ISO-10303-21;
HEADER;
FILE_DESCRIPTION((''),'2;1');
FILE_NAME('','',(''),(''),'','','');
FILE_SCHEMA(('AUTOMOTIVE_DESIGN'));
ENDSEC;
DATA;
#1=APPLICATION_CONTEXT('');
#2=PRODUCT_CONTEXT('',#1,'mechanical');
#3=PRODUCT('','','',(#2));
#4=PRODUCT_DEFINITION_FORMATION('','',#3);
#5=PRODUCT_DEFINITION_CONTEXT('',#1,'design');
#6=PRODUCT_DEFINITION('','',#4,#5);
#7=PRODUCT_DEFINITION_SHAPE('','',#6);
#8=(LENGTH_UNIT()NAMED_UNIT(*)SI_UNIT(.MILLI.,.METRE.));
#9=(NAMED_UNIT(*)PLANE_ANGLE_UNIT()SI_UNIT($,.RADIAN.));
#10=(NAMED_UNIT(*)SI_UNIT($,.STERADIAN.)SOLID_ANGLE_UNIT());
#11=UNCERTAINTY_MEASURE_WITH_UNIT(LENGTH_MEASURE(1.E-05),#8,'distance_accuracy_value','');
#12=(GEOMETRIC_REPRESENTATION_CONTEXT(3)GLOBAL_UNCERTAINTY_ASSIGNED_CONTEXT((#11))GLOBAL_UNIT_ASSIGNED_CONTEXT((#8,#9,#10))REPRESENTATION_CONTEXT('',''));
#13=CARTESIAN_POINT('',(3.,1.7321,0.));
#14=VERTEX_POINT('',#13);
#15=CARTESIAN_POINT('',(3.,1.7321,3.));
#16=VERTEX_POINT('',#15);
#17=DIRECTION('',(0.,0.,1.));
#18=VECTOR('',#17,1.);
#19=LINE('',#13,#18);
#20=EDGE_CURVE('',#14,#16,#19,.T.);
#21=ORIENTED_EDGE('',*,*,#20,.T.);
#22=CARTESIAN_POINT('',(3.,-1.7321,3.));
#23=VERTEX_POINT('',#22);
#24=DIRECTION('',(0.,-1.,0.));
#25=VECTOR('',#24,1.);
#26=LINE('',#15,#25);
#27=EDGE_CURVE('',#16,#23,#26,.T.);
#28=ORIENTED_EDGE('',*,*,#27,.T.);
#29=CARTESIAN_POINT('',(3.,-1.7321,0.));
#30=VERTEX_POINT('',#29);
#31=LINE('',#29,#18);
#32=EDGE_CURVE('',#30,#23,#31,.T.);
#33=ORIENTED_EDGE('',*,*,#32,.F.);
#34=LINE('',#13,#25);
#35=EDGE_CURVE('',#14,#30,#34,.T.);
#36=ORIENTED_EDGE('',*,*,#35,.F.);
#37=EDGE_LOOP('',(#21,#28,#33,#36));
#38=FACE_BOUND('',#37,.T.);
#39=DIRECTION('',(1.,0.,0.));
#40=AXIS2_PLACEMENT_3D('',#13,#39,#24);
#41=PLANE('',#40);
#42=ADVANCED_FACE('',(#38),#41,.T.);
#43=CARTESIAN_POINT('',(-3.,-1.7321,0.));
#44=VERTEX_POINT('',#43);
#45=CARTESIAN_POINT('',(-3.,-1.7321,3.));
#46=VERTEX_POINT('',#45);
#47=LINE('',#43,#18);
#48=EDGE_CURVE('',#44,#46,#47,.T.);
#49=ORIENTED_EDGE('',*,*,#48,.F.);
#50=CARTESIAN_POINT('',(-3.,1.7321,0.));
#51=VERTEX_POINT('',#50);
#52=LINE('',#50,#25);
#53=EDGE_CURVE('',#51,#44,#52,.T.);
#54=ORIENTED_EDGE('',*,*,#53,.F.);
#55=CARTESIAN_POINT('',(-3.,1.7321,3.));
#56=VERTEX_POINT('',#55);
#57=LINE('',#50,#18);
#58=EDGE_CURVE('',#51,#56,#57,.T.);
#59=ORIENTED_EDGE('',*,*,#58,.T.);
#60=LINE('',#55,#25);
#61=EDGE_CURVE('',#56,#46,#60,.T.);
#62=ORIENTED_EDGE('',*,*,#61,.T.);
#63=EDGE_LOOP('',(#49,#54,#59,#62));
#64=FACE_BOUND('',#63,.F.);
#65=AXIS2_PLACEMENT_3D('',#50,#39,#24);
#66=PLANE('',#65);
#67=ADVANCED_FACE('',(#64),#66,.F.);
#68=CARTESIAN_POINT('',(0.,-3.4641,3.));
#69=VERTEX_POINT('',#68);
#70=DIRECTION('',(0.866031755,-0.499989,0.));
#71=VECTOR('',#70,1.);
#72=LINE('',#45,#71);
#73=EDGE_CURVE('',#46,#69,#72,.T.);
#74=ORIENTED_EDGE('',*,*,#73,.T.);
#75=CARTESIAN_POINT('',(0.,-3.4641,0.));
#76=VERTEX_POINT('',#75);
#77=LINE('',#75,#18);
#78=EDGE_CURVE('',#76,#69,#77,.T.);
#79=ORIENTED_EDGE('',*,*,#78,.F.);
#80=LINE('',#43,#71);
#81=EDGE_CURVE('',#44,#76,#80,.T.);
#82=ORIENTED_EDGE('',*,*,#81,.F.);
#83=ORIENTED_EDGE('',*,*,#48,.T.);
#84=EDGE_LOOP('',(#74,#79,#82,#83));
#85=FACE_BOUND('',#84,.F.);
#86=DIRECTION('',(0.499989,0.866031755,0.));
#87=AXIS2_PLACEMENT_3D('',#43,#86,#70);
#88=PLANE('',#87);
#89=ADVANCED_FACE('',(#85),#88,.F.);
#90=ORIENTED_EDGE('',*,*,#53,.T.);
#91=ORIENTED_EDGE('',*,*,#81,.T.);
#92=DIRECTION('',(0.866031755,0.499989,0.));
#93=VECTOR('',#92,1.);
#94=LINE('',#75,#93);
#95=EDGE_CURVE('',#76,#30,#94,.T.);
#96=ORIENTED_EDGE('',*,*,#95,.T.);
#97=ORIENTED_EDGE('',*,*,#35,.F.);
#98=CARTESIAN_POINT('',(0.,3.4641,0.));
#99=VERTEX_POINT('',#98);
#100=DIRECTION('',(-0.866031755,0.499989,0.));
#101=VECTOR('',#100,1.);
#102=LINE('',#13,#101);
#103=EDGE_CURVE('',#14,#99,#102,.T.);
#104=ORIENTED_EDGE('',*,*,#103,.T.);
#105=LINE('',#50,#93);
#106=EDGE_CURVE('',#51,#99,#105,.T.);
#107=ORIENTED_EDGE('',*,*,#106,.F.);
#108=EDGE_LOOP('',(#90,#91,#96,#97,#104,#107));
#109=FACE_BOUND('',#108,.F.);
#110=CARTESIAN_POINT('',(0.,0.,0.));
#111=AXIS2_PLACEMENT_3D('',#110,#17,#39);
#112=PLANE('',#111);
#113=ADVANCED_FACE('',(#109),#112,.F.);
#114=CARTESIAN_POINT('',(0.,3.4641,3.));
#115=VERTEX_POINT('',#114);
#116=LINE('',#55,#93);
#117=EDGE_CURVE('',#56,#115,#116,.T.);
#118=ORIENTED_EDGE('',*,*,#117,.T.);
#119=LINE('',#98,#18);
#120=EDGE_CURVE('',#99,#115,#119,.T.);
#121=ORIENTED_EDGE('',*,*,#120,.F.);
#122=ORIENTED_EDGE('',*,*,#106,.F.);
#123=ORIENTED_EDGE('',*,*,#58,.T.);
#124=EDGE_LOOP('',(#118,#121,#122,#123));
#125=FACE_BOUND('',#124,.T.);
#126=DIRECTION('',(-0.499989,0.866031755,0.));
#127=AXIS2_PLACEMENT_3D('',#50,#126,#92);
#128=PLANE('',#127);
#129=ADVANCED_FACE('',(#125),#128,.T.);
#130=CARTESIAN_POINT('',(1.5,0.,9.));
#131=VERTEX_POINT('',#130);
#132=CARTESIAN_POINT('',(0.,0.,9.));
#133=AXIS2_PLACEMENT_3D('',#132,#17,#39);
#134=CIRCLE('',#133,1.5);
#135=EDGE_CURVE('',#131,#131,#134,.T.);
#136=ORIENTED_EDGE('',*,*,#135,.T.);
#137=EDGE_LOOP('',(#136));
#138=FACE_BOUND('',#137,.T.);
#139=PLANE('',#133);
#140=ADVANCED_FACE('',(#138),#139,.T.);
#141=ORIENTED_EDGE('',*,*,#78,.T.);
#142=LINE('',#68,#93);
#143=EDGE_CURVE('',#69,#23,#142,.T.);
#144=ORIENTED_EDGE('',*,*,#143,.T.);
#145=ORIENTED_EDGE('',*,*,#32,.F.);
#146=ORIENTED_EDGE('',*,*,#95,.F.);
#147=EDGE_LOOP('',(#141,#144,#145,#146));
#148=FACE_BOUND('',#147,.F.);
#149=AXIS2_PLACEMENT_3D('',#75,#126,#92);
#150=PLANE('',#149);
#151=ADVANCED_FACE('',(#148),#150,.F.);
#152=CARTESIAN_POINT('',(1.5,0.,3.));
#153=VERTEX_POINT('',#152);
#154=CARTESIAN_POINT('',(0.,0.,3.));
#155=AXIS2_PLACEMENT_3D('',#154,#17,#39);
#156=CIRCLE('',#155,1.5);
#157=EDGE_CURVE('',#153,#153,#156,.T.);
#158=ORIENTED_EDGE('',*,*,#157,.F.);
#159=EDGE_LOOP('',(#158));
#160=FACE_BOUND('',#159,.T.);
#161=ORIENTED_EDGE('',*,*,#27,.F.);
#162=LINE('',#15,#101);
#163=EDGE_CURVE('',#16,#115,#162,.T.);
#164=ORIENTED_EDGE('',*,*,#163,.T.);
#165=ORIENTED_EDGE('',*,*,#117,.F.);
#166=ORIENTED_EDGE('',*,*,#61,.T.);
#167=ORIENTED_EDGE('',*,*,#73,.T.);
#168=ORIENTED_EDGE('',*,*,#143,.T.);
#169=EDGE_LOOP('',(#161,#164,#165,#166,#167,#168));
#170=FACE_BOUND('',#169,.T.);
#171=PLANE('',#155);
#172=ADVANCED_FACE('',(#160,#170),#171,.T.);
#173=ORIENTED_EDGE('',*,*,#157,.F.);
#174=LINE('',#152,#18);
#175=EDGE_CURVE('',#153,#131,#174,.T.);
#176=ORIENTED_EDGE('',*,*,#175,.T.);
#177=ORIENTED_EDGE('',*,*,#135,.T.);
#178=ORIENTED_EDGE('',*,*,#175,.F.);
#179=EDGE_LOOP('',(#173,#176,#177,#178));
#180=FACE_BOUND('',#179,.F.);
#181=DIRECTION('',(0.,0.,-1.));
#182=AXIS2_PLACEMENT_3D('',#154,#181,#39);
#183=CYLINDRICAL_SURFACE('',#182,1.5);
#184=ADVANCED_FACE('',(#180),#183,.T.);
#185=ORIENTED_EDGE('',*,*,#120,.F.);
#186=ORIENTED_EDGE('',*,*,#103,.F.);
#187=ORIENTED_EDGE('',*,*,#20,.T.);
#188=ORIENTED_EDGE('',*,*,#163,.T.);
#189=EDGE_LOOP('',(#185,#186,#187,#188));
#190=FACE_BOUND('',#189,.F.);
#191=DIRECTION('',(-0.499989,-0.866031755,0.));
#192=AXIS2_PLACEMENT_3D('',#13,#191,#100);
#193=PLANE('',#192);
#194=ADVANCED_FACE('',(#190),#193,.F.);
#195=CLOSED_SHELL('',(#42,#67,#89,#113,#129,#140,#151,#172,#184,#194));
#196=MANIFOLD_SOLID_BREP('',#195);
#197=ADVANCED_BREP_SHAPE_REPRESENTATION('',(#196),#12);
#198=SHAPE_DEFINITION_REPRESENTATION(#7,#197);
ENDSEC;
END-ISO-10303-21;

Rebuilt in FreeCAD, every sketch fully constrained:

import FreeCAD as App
import Part
import Sketcher

V = App.Vector
Q = App.Units.Quantity


def add_polygon(sketch, points):
    """Adds a closed chain of lines whose ends are joined by coincident constraints."""
    first, n = sketch.GeometryCount, len(points)
    for a, b in zip(points, points[1:] + points[:1]):
        sketch.addGeometry(Part.LineSegment(App.Vector(*a, 0), App.Vector(*b, 0)), False)
    for i in range(n):
        sketch.addConstraint(Sketcher.Constraint("Coincident", first + i, 2, first + (i + 1) % n, 1))

doc = App.newDocument("Part")
body = doc.addObject("PartDesign::Body", "Body")

# Sketch on XY plane
sketch1 = body.newObject("Sketcher::SketchObject", "Sketch")
sketch1.AttachmentSupport = (doc.getObject("XY_Plane"), [""])
sketch1.MapMode = "FlatFace"
add_polygon(sketch1, [(3, -1.7), (3, 1.7), (0, 3.5), (-3, 1.7), (-3, -1.7), (0, -3.5)])  # lines 0-5
sketch1.addConstraint(Sketcher.Constraint("Vertical", 0))
sketch1.addConstraint(Sketcher.Constraint("Vertical", 3))
sketch1.addConstraint(Sketcher.Constraint("Symmetric", 0, 2, 3, 2, -1, 1))
sketch1.addConstraint(Sketcher.Constraint("Symmetric", 1, 2, 4, 2, -1, 1))
sketch1.addConstraint(Sketcher.Constraint("PointOnObject", 1, 2, -2))
sketch1.addConstraint(Sketcher.Constraint("Parallel", 2, 5))
sketch1.addConstraint(Sketcher.Constraint("Horizontal", 0, 2, 2, 2))
sketch1.addConstraint(Sketcher.Constraint("DistanceX", -1, 1, 0, 2, Q("3 mm")))
sketch1.addConstraint(Sketcher.Constraint("Angle", 1, Q("150.0007 deg")))
sketch1.addConstraint(Sketcher.Constraint("DistanceY", 0, 1, 0, 2, Q("3.4642 mm")))
pad1 = body.newObject("PartDesign::Pad", "Pad")
pad1.Profile = sketch1
pad1.Length = 3

# Sketch on XY plane
sketch2 = body.newObject("Sketcher::SketchObject", "Sketch001")
sketch2.AttachmentSupport = (doc.getObject("XY_Plane"), [""])
sketch2.MapMode = "FlatFace"
sketch2.AttachmentOffset = App.Placement(V(0, 0, 3), App.Rotation())
sketch2.addGeometry(Part.Circle(V(0, 0, 0), V(0, 0, 1), 1.5), False)
sketch2.addConstraint(Sketcher.Constraint("Coincident", 0, 3, -1, 1))
sketch2.addConstraint(Sketcher.Constraint("Diameter", 0, Q("3 mm")))
pad2 = body.newObject("PartDesign::Pad", "Pad001")
pad2.Profile = sketch2
pad2.Length = 6

doc.recompute()
